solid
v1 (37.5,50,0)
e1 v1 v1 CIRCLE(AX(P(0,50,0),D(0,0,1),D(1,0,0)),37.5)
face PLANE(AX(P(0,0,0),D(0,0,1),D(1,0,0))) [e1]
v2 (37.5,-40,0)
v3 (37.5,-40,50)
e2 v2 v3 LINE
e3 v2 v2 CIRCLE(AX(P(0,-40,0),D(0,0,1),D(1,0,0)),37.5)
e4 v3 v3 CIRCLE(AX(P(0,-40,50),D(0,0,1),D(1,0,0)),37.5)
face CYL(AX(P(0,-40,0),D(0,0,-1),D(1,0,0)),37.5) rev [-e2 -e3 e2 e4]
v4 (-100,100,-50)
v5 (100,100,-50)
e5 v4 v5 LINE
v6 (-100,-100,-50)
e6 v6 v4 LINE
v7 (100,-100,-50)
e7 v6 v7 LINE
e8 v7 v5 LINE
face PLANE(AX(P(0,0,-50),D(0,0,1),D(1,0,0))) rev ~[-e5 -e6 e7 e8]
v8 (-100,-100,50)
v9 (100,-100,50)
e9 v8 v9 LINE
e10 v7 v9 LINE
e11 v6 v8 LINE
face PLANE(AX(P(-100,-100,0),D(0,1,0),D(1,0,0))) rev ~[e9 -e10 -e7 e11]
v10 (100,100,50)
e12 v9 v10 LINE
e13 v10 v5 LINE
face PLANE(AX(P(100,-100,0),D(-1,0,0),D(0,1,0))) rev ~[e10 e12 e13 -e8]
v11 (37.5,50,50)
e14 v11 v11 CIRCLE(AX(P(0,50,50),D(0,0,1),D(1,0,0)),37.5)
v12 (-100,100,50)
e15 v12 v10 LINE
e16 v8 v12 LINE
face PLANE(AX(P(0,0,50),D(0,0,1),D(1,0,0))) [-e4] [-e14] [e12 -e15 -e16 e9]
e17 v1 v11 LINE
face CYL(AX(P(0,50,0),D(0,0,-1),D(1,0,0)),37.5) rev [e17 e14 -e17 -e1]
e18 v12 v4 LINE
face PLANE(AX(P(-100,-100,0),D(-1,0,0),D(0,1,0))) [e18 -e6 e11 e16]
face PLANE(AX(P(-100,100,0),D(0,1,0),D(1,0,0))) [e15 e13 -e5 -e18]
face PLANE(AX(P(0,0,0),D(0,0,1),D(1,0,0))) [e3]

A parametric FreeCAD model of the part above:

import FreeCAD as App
import Part
import Sketcher

V = App.Vector
Q = App.Units.Quantity

doc = App.newDocument("Part")
body = doc.addObject("PartDesign::Body", "Body")

# Sketch on XY plane
sketch1 = body.newObject("Sketcher::SketchObject", "Sketch")
sketch1.AttachmentSupport = (doc.getObject("XY_Plane"), [""])
sketch1.MapMode = "FlatFace"
sketch1.addGeometry([
    Part.LineSegment(V(-100, 100, 0), V(-100, -100, 0)),
    Part.LineSegment(V(-100, -100, 0), V(100, -100, 0)),
    Part.LineSegment(V(100, -100, 0), V(100, 100, 0)),
    Part.LineSegment(V(100, 100, 0), V(-100, 100, 0)),
], False)
sketch1.addConstraint([
    Sketcher.Constraint("Coincident", 0, 2, 1, 1),
    Sketcher.Constraint("Coincident", 1, 2, 2, 1),
    Sketcher.Constraint("Coincident", 2, 2, 3, 1),
    Sketcher.Constraint("Coincident", 3, 2, 0, 1),
    Sketcher.Constraint("Vertical", 0),
    Sketcher.Constraint("Horizontal", 1),
    Sketcher.Constraint("Vertical", 2),
    Sketcher.Constraint("Horizontal", 3),
    Sketcher.Constraint("Symmetric", 0, 2, 2, 2, -1, 1),
    Sketcher.Constraint("Equal", 3, 0),
    Sketcher.Constraint("DistanceX", 1, 1, 1, 2, Q("200 mm")),
])
pad1 = body.newObject("PartDesign::Pad", "Pad")
pad1.Profile = sketch1
pad1.Length = 50
pad1.Reversed = True

# Sketch on XY plane
sketch2 = body.newObject("Sketcher::SketchObject", "Sketch001")
sketch2.AttachmentSupport = (doc.getObject("XY_Plane"), [""])
sketch2.MapMode = "FlatFace"
sketch2.addGeometry([
    Part.LineSegment(V(-100, 100, 0), V(-100, -100, 0)),  # 0
    Part.LineSegment(V(-100, -100, 0), V(100, -100, 0)),  # 1
    Part.LineSegment(V(100, -100, 0), V(100, 100, 0)),  # 2
    Part.LineSegment(V(100, 100, 0), V(-100, 100, 0)),  # 3
    Part.Circle(V(0, -40, 0), V(0, 0, 1), 38),  # 4
    Part.Circle(V(0, 50, 0), V(0, 0, 1), 38),  # 5
], False)
sketch2.addConstraint([
    Sketcher.Constraint("Coincident", 0, 2, 1, 1),
    Sketcher.Constraint("Coincident", 1, 2, 2, 1),
    Sketcher.Constraint("Coincident", 2, 2, 3, 1),
    Sketcher.Constraint("Coincident", 3, 2, 0, 1),
    Sketcher.Constraint("Vertical", 0),
    Sketcher.Constraint("Horizontal", 1),
    Sketcher.Constraint("Vertical", 2),
    Sketcher.Constraint("Horizontal", 3),
    Sketcher.Constraint("Equal", 4, 5),
    Sketcher.Constraint("Symmetric", 0, 2, 2, 2, -1, 1),
    Sketcher.Constraint("PointOnObject", 4, 3, -2),
    Sketcher.Constraint("PointOnObject", 5, 3, -2),
    Sketcher.Constraint("Equal", 3, 0),
    Sketcher.Constraint("Diameter", 4, Q("75 mm")),
    Sketcher.Constraint("DistanceX", 1, 1, 1, 2, Q("200 mm")),
    Sketcher.Constraint("DistanceY", 4, 3, -1, 1, Q("40 mm")),
    Sketcher.Constraint("DistanceY", -1, 1, 5, 3, Q("50 mm")),
])
pad2 = body.newObject("PartDesign::Pad", "Pad001")
pad2.Profile = sketch2
pad2.Length = 50

doc.recompute()
